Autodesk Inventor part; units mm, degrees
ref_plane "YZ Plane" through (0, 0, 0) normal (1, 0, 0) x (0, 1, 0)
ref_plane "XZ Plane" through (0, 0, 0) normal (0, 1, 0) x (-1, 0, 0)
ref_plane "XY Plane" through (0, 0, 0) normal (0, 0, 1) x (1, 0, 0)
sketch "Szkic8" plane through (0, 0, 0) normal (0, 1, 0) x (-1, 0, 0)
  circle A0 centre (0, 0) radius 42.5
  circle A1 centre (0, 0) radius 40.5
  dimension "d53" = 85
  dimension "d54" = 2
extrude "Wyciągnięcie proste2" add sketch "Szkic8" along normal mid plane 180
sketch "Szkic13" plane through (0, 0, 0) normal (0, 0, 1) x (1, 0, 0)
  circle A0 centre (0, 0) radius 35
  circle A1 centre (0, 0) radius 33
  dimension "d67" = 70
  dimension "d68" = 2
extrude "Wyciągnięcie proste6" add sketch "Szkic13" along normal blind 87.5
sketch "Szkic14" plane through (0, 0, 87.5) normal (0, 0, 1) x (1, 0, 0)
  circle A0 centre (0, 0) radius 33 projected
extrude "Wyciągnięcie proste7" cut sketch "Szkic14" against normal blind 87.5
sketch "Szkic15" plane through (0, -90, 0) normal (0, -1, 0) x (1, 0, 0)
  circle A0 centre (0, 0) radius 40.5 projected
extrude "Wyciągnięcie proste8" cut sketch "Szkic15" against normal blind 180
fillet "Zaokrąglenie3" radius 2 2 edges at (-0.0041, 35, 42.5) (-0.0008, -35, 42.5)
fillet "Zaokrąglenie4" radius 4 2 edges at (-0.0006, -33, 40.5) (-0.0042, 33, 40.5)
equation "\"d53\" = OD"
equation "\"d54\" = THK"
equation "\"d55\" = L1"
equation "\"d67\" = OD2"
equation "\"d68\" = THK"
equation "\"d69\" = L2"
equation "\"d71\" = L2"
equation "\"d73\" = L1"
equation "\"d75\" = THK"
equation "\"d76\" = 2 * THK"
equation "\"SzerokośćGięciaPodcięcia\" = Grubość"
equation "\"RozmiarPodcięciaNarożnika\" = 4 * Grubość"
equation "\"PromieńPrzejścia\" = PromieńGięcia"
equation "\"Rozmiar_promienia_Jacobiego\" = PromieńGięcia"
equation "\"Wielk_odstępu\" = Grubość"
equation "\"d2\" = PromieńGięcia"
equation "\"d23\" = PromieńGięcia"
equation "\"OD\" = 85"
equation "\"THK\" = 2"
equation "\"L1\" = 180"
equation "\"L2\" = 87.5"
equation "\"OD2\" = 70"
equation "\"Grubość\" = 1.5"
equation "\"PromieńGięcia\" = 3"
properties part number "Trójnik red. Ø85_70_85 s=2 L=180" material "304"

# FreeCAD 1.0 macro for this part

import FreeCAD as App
import Part
import Sketcher

V = App.Vector


def edges_at(feature, points):
    """Names of the edges that pass closest to the given points."""
    edges = feature.Shape.Edges
    near = lambda p: min(range(len(edges)), key=lambda i: edges[i].distToShape(Part.Vertex(*p))[0])
    return sorted({f"Edge{near(p) + 1}" for p in points})

doc = App.newDocument("Part")
body = doc.addObject("PartDesign::Body", "Body")

# Sketch on XZ plane
sketch1 = doc.addObject("Sketcher::SketchObject", "Sketch")
body.addObject(sketch1)
sketch1.AttachmentSupport = (doc.XZ_Plane, [""])
sketch1.MapMode = "FlatFace"
sketch1.addGeometry(Part.Circle(V(0, 0, 0), V(0, 0, 1), 42.5), False)
sketch1.addGeometry(Part.Circle(V(0, 0, 0), V(0, 0, 1), 40.5), False)
sketch1.addConstraint(Sketcher.Constraint("Coincident", 0, 3, -1, 1))
sketch1.addConstraint(Sketcher.Constraint("Coincident", 1, 3, -1, 1))
sketch1.addConstraint(Sketcher.Constraint("Diameter", 0, 85.0))
sketch1.addConstraint(Sketcher.Constraint("Diameter", 1, 81.0))
pad1 = doc.addObject("PartDesign::Pad", "Pad")
body.addObject(pad1)
pad1.Profile = sketch1
pad1.Length = 180
pad1.Midplane = True

# Sketch on XY plane
sketch2 = doc.addObject("Sketcher::SketchObject", "Sketch001")
body.addObject(sketch2)
sketch2.AttachmentSupport = (doc.XY_Plane, [""])
sketch2.MapMode = "FlatFace"
sketch2.addGeometry(Part.Circle(V(0, 0, 0), V(0, 0, 1), 35), False)
sketch2.addGeometry(Part.Circle(V(0, 0, 0), V(0, 0, 1), 33), False)
sketch2.addConstraint(Sketcher.Constraint("Coincident", 0, 3, -1, 1))
sketch2.addConstraint(Sketcher.Constraint("Coincident", 1, 3, -1, 1))
sketch2.addConstraint(Sketcher.Constraint("Diameter", 0, 70.0))
sketch2.addConstraint(Sketcher.Constraint("Diameter", 1, 66.0))
pad2 = doc.addObject("PartDesign::Pad", "Pad001")
body.addObject(pad2)
pad2.Profile = sketch2
pad2.Length = 87.5

# Sketch on XY plane
sketch3 = doc.addObject("Sketcher::SketchObject", "Sketch002")
body.addObject(sketch3)
sketch3.AttachmentSupport = (doc.XY_Plane, [""])
sketch3.MapMode = "FlatFace"
sketch3.AttachmentOffset = App.Placement(V(0, 0, 87.5), App.Rotation())
sketch3.addGeometry(Part.Circle(V(0, 0, 0), V(0, 0, 1), 33), False)
sketch3.addConstraint(Sketcher.Constraint("Coincident", 0, 3, -1, 1))
sketch3.addConstraint(Sketcher.Constraint("Diameter", 0, 66.0))
pocket1 = doc.addObject("PartDesign::Pocket", "Pocket")
body.addObject(pocket1)
pocket1.Profile = sketch3
pocket1.Length = 87.5

# Sketch on XZ plane
sketch4 = doc.addObject("Sketcher::SketchObject", "Sketch003")
body.addObject(sketch4)
sketch4.AttachmentSupport = (doc.XZ_Plane, [""])
sketch4.MapMode = "FlatFace"
sketch4.AttachmentOffset = App.Placement(V(0, 0, 90), App.Rotation())
sketch4.addGeometry(Part.Circle(V(0, 0, 0), V(0, 0, 1), 40.5), False)
sketch4.addConstraint(Sketcher.Constraint("Coincident", 0, 3, -1, 1))
sketch4.addConstraint(Sketcher.Constraint("Diameter", 0, 81.0))
pocket2 = doc.addObject("PartDesign::Pocket", "Pocket001")
body.addObject(pocket2)
pocket2.Profile = sketch4
pocket2.Length = 180
doc.recompute()

fillet = doc.addObject("PartDesign::Fillet", "Fillet")
body.addObject(fillet)
fillet.Base = (pocket2, edges_at(pocket2, [(-0.004, 35, 42.5), (-0.001, -35, 42.5)]))
fillet.Radius = 2
doc.recompute()

fillet2 = doc.addObject("PartDesign::Fillet", "Fillet001")
body.addObject(fillet2)
fillet2.Base = (fillet, edges_at(fillet, [(-0.001, -33, 40.5), (-0.004, 33, 40.5)]))
fillet2.Radius = 4

doc.recompute()
